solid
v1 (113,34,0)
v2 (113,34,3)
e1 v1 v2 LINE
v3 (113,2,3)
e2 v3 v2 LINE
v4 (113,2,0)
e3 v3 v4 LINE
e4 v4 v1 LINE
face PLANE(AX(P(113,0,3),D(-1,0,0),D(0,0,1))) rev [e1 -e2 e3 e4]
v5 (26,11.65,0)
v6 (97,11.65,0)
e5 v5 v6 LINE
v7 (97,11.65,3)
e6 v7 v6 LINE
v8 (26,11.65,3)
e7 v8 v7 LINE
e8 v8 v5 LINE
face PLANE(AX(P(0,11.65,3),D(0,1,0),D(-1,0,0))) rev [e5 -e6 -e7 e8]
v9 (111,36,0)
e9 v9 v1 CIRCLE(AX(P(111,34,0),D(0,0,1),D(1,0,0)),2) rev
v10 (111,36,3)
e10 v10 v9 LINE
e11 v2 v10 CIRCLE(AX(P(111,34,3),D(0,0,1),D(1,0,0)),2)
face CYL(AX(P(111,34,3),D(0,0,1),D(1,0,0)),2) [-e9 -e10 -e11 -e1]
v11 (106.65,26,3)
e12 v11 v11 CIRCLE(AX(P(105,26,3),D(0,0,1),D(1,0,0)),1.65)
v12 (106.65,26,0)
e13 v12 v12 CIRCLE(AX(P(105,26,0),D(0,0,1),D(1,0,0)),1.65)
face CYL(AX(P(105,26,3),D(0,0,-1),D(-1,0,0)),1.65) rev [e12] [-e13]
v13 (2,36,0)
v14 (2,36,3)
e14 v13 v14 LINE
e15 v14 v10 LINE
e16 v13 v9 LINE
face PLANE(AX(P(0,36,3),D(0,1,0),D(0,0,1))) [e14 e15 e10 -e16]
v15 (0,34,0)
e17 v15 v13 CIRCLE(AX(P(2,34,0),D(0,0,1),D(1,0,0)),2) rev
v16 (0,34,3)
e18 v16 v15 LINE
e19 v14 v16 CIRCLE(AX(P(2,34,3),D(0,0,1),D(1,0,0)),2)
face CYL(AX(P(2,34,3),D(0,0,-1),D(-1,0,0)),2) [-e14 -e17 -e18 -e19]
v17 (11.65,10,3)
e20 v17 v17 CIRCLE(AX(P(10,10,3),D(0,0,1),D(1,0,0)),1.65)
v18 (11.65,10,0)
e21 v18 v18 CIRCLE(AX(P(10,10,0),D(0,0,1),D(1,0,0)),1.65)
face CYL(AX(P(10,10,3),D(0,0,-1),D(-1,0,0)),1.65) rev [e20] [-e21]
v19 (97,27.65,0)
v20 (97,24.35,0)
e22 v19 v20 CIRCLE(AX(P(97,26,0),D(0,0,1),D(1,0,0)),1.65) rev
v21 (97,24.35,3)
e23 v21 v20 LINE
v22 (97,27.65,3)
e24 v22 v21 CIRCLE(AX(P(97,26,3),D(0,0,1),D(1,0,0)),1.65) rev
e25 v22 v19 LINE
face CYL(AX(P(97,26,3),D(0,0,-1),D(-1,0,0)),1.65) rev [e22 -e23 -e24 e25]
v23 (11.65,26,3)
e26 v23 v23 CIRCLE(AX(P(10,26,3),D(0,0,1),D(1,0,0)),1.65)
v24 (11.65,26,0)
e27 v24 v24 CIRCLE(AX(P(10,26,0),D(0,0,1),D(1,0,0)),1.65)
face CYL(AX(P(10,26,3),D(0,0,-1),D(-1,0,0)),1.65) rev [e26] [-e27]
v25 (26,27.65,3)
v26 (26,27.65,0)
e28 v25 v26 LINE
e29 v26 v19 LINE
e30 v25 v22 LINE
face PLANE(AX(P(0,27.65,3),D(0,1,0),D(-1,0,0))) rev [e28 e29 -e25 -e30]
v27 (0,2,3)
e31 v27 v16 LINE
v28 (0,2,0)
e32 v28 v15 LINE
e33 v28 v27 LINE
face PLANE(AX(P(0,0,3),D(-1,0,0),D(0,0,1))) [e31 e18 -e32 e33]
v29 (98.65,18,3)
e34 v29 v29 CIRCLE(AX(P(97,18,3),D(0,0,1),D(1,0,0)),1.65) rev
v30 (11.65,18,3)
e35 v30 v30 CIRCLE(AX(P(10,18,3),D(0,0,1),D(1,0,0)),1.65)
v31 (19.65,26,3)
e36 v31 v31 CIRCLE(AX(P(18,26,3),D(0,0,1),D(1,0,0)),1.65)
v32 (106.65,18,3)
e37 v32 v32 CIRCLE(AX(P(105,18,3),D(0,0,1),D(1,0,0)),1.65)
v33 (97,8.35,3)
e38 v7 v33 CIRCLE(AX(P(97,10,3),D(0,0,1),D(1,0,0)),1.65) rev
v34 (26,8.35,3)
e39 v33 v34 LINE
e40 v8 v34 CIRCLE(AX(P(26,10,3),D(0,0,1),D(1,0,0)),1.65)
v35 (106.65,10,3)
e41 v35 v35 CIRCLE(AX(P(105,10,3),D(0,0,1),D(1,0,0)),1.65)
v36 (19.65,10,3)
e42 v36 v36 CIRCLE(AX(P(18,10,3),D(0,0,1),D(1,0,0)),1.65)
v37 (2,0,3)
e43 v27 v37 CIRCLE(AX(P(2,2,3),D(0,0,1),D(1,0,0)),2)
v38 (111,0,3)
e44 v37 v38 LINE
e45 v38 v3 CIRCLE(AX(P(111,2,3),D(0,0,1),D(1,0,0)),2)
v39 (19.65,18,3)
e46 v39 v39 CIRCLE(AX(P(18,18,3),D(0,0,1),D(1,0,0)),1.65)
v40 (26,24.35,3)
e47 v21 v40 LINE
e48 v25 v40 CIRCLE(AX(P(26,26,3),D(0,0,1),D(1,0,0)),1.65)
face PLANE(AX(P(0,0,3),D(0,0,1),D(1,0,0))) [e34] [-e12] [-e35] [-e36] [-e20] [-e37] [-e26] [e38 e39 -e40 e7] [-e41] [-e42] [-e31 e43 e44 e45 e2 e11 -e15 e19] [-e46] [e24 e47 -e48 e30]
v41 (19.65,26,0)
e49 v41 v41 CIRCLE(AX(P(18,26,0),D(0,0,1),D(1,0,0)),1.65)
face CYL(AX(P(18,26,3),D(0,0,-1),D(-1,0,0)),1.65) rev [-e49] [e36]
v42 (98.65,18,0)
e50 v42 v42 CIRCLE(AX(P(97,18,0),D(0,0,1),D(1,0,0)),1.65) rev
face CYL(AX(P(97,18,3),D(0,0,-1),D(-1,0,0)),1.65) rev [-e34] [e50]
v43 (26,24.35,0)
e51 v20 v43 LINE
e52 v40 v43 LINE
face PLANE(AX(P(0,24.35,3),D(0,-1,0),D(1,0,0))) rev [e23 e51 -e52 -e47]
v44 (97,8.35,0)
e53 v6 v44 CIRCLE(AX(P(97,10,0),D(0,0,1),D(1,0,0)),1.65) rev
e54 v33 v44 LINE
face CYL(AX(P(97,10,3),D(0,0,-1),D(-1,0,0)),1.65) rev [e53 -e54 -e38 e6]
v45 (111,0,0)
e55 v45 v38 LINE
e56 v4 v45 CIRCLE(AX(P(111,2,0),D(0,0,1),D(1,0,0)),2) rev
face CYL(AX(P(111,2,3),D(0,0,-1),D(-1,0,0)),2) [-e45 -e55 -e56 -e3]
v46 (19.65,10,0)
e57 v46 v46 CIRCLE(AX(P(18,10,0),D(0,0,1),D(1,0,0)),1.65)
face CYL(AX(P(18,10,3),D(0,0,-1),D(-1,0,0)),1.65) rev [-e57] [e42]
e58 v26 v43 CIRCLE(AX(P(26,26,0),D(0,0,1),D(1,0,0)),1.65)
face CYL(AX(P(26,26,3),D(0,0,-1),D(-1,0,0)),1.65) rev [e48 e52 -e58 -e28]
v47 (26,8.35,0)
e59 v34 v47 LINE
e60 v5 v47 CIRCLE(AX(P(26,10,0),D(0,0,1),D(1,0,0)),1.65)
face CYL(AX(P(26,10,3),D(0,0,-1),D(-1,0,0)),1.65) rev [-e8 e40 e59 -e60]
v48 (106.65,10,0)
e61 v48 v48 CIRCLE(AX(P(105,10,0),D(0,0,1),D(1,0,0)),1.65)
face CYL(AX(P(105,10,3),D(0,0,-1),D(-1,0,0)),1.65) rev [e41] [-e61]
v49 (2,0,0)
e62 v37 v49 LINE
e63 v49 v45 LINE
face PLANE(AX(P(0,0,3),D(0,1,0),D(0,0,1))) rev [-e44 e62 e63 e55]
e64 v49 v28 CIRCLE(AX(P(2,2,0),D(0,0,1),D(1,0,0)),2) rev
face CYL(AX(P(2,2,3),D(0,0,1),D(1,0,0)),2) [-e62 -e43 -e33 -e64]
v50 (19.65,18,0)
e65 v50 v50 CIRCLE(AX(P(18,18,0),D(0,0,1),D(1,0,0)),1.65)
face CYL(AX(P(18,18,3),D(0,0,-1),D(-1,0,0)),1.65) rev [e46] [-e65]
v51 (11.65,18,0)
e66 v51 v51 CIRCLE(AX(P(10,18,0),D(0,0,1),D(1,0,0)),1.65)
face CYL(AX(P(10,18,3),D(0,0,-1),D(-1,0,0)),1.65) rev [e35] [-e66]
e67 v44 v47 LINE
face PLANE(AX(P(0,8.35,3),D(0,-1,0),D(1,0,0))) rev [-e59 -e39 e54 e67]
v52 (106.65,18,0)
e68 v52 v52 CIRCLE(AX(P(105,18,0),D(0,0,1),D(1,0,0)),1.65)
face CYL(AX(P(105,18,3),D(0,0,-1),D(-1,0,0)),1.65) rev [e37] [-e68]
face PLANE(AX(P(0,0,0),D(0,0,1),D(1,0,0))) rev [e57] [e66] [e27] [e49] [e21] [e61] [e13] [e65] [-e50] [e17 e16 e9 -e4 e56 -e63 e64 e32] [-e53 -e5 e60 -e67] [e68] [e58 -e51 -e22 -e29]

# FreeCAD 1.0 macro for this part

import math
import FreeCAD as App
import Part
import Sketcher


def edges_at(feature, points):
    """Names of the edges that pass closest to the given points."""
    edges = feature.Shape.Edges
    near = lambda p: min(range(len(edges)), key=lambda i: edges[i].distToShape(Part.Vertex(*p))[0])
    return sorted({f"Edge{near(p) + 1}" for p in points})

doc = App.newDocument("Part")
params = doc.addObject("Spreadsheet::Sheet", "Params")
for row, (alias, value) in enumerate([
    ("sketch1_diameter", "3.3 mm"),
    ("sketch1_width", "113 mm"),
    ("sketch1_width2", "71 mm"),
    ("sketch1_height", "36 mm"),
    ("pad1_length", "3 mm"),
    ("fillet_radius", "2 mm"),
], start=1):
    params.set(f"A{row}", alias)
    params.set(f"B{row}", "=" + value)
    params.setAlias(f"B{row}", alias)

body = doc.addObject("PartDesign::Body", "Body")

sketch1 = doc.addObject("Sketcher::SketchObject", "Sketch")
body.addObject(sketch1)
sketch1.AttachmentSupport = (doc.XY_Plane, [""])
sketch1.MapMode = "FlatFace"
sketch1.addGeometry(Part.LineSegment(App.Vector(0, 36, 0), App.Vector(0, 0, 0)), False)
sketch1.addGeometry(Part.LineSegment(App.Vector(0, 0, 0), App.Vector(113, 0, 0)), False)
sketch1.addGeometry(Part.LineSegment(App.Vector(113, 0, 0), App.Vector(113, 36, 0)), False)
sketch1.addGeometry(Part.LineSegment(App.Vector(113, 36, 0), App.Vector(0, 36, 0)), False)
sketch1.addGeometry(Part.Circle(App.Vector(10, 10, 0), App.Vector(0, 0, 1), 1.6), False)
sketch1.addGeometry(Part.Circle(App.Vector(18, 10, 0), App.Vector(0, 0, 1), 1.6), False)
sketch1.addGeometry(Part.LineSegment(App.Vector(97, 8.3, 0), App.Vector(26, 8.3, 0)), False)
sketch1.addGeometry(Part.ArcOfCircle(Part.Circle(App.Vector(26, 10, 0), App.Vector(0, 0, 1), 1.6), math.radians(90), math.radians(270)), False)
sketch1.addGeometry(Part.LineSegment(App.Vector(26, 11.7, 0), App.Vector(97, 11.7, 0)), False)
sketch1.addGeometry(Part.ArcOfCircle(Part.Circle(App.Vector(97, 10, 0), App.Vector(0, 0, 1), 1.6), math.radians(0), math.radians(90)), False)
sketch1.addGeometry(Part.ArcOfCircle(Part.Circle(App.Vector(97, 10, 0), App.Vector(0, 0, 1), 1.6), math.radians(-90), math.radians(0)), False)
sketch1.addGeometry(Part.Circle(App.Vector(105, 10, 0), App.Vector(0, 0, 1), 1.6), False)
sketch1.addGeometry(Part.Circle(App.Vector(10, 18, 0), App.Vector(0, 0, 1), 1.6), False)
sketch1.addGeometry(Part.Circle(App.Vector(18, 18, 0), App.Vector(0, 0, 1), 1.6), False)
sketch1.addGeometry(Part.Circle(App.Vector(10, 26, 0), App.Vector(0, 0, 1), 1.6), False)
sketch1.addGeometry(Part.Circle(App.Vector(18, 26, 0), App.Vector(0, 0, 1), 1.6), False)
sketch1.addGeometry(Part.Circle(App.Vector(97, 18, 0), App.Vector(0, 0, 1), 1.6), False)
sketch1.addGeometry(Part.Circle(App.Vector(105, 18, 0), App.Vector(0, 0, 1), 1.6), False)
sketch1.addGeometry(Part.LineSegment(App.Vector(97, 24.4, 0), App.Vector(26, 24.4, 0)), False)
sketch1.addGeometry(Part.ArcOfCircle(Part.Circle(App.Vector(26, 26, 0), App.Vector(0, 0, 1), 1.6), math.radians(90), math.radians(270)), False)
sketch1.addGeometry(Part.LineSegment(App.Vector(26, 27.6, 0), App.Vector(97, 27.6, 0)), False)
sketch1.addGeometry(Part.ArcOfCircle(Part.Circle(App.Vector(97, 26, 0), App.Vector(0, 0, 1), 1.6), math.radians(0), math.radians(90)), False)
sketch1.addGeometry(Part.ArcOfCircle(Part.Circle(App.Vector(97, 26, 0), App.Vector(0, 0, 1), 1.6), math.radians(-90), math.radians(0)), False)
sketch1.addGeometry(Part.Circle(App.Vector(105, 26, 0), App.Vector(0, 0, 1), 1.6), False)
sketch1.addConstraint(Sketcher.Constraint("Coincident", 0, 2, 1, 1))
sketch1.addConstraint(Sketcher.Constraint("Coincident", 1, 2, 2, 1))
sketch1.addConstraint(Sketcher.Constraint("Coincident", 2, 2, 3, 1))
sketch1.addConstraint(Sketcher.Constraint("Coincident", 3, 2, 0, 1))
sketch1.addConstraint(Sketcher.Constraint("Tangent", 6, 2, 7, 2))
sketch1.addConstraint(Sketcher.Constraint("Tangent", 7, 1, 8, 1))
sketch1.addConstraint(Sketcher.Constraint("Tangent", 8, 2, 9, 2))
sketch1.addConstraint(Sketcher.Constraint("Tangent", 9, 1, 10, 2))
sketch1.addConstraint(Sketcher.Constraint("Tangent", 10, 1, 6, 1))
sketch1.addConstraint(Sketcher.Constraint("Tangent", 18, 2, 19, 2))
sketch1.addConstraint(Sketcher.Constraint("Tangent", 19, 1, 20, 1))
sketch1.addConstraint(Sketcher.Constraint("Tangent", 20, 2, 21, 2))
sketch1.addConstraint(Sketcher.Constraint("Tangent", 21, 1, 22, 2))
sketch1.addConstraint(Sketcher.Constraint("Tangent", 22, 1, 18, 1))
sketch1.addConstraint(Sketcher.Constraint("Vertical", 0))
sketch1.addConstraint(Sketcher.Constraint("Horizontal", 1))
sketch1.addConstraint(Sketcher.Constraint("Vertical", 2))
sketch1.addConstraint(Sketcher.Constraint("Horizontal", 3))
sketch1.addConstraint(Sketcher.Constraint("Horizontal", 6))
sketch1.addConstraint(Sketcher.Constraint("Horizontal", 8))
sketch1.addConstraint(Sketcher.Constraint("Horizontal", 18))
sketch1.addConstraint(Sketcher.Constraint("Horizontal", 20))
sketch1.addConstraint(Sketcher.Constraint("Coincident", 0, 2, -1, 1))
sketch1.addConstraint(Sketcher.Constraint("Equal", 4, 5))
sketch1.addConstraint(Sketcher.Constraint("Equal", 5, 7))
sketch1.addConstraint(Sketcher.Constraint("Equal", 7, 9))
sketch1.addConstraint(Sketcher.Constraint("Equal", 10, 11))
sketch1.addConstraint(Sketcher.Constraint("Equal", 11, 12))
sketch1.addConstraint(Sketcher.Constraint("Equal", 12, 13))
sketch1.addConstraint(Sketcher.Constraint("Equal", 13, 14))
sketch1.addConstraint(Sketcher.Constraint("Equal", 14, 15))
sketch1.addConstraint(Sketcher.Constraint("Equal", 15, 16))
sketch1.addConstraint(Sketcher.Constraint("Equal", 16, 17))
sketch1.addConstraint(Sketcher.Constraint("Equal", 17, 19))
sketch1.addConstraint(Sketcher.Constraint("Equal", 19, 21))
sketch1.addConstraint(Sketcher.Constraint("Equal", 22, 23))
sketch1.addConstraint(Sketcher.Constraint("Horizontal", 4, 3, 5, 3))
sketch1.addConstraint(Sketcher.Constraint("Horizontal", 5, 3, 7, 3))
sketch1.addConstraint(Sketcher.Constraint("Horizontal", 10, 3, 11, 3))
sketch1.addConstraint(Sketcher.Constraint("Horizontal", 12, 3, 13, 3))
sketch1.addConstraint(Sketcher.Constraint("Horizontal", 14, 3, 15, 3))
sketch1.addConstraint(Sketcher.Constraint("Horizontal", 13, 3, 16, 3))
sketch1.addConstraint(Sketcher.Constraint("Horizontal", 16, 3, 17, 3))
sketch1.addConstraint(Sketcher.Constraint("Horizontal", 15, 3, 19, 3))
sketch1.addConstraint(Sketcher.Constraint("Horizontal", 22, 3, 23, 3))
sketch1.addConstraint(Sketcher.Constraint("Horizontal", 11, 3, 9, 1))
sketch1.addConstraint(Sketcher.Constraint("Horizontal", 23, 3, 21, 1))
sketch1.addConstraint(Sketcher.Constraint("Vertical", 4, 3, 12, 3))
sketch1.addConstraint(Sketcher.Constraint("Vertical", 5, 3, 13, 3))
sketch1.addConstraint(Sketcher.Constraint("Vertical", 12, 3, 14, 3))
sketch1.addConstraint(Sketcher.Constraint("Vertical", 13, 3, 15, 3))
sketch1.addConstraint(Sketcher.Constraint("Vertical", 10, 3, 16, 3))
sketch1.addConstraint(Sketcher.Constraint("Vertical", 11, 3, 17, 3))
sketch1.addConstraint(Sketcher.Constraint("Vertical", 7, 3, 19, 3))
sketch1.addConstraint(Sketcher.Constraint("Vertical", 16, 3, 21, 3))
sketch1.addConstraint(Sketcher.Constraint("Vertical", 17, 3, 23, 3))
sketch1.addConstraint(Sketcher.Constraint("Diameter", 4, 3.3))
sketch1.addConstraint(Sketcher.Constraint("DistanceX", 1, 1, 1, 2, 113.0))
sketch1.addConstraint(Sketcher.Constraint("DistanceX", 6, 2, 6, 1, 71.0))
sketch1.addConstraint(Sketcher.Constraint("DistanceY", 0, 2, 0, 1, 36.0))
sketch1.addConstraint(Sketcher.Constraint("DistanceX", -1, 1, 4, 3, 10.0))
sketch1.addConstraint(Sketcher.Constraint("DistanceY", -1, 1, 4, 3, 10.0))
sketch1.addConstraint(Sketcher.Constraint("DistanceX", -1, 1, 5, 3, 18.0))
sketch1.addConstraint(Sketcher.Constraint("DistanceX", -1, 1, 7, 3, 26.0))
sketch1.addConstraint(Sketcher.Constraint("DistanceX", -1, 1, 11, 3, 105.0))
sketch1.addConstraint(Sketcher.Constraint("DistanceY", -1, 1, 12, 3, 18.0))
sketch1.addConstraint(Sketcher.Constraint("DistanceY", -1, 1, 14, 3, 26.0))
sketch1.setExpression("Constraints[56]", "Params.sketch1_diameter")
sketch1.setExpression("Constraints[57]", "Params.sketch1_width")
sketch1.setExpression("Constraints[58]", "Params.sketch1_width2")
sketch1.setExpression("Constraints[59]", "Params.sketch1_height")
pad1 = doc.addObject("PartDesign::Pad", "Pad")
body.addObject(pad1)
pad1.Profile = sketch1
pad1.setExpression("Length", "Params.pad1_length")
doc.recompute()

fillet = doc.addObject("PartDesign::Fillet", "Fillet")
body.addObject(fillet)
fillet.Base = (pad1, edges_at(pad1, [
    (0, 0, 1.5),
    (0, 36, 1.5),
    (113, 36, 1.5),
    (113, 0, 1.5),
]))
fillet.setExpression("Radius", "Params.fillet_radius")

doc.recompute()
